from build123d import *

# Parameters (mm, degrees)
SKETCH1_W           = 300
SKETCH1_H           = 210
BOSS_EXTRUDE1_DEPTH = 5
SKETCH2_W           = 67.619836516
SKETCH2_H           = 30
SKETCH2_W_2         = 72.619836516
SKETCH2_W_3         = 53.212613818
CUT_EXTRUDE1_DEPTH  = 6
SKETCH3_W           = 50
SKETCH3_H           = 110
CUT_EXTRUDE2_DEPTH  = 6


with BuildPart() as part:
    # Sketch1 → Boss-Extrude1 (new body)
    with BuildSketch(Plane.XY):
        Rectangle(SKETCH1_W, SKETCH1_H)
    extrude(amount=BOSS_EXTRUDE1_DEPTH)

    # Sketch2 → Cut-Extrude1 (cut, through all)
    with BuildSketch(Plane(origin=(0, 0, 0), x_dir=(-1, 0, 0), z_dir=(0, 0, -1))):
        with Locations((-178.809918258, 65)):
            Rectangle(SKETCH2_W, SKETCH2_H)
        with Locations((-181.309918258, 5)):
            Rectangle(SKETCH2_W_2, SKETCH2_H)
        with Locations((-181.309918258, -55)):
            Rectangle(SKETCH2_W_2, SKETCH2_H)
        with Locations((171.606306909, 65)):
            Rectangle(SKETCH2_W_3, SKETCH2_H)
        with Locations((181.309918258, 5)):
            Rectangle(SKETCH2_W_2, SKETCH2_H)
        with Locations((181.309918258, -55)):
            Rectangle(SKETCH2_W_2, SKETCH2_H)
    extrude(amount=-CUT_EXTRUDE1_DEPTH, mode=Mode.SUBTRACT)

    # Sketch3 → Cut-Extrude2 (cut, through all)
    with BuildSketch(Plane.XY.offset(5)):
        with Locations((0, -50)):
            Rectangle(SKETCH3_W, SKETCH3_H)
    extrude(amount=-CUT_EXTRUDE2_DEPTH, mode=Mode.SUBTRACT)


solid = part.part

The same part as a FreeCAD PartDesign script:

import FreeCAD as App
import Part
import Sketcher

V = App.Vector

doc = App.newDocument("Part")
body = doc.addObject("PartDesign::Body", "Body")

# Sketch on XY plane
sketch1 = body.newObject("Sketcher::SketchObject", "Sketch")
sketch1.AttachmentSupport = (doc.getObject("XY_Plane"), [""])
sketch1.MapMode = "FlatFace"
sketch1.addGeometry(Part.LineSegment(V(-150, 105, 0), V(-150, -105, 0)), False)
sketch1.addGeometry(Part.LineSegment(V(-150, -105, 0), V(150, -105, 0)), False)
sketch1.addGeometry(Part.LineSegment(V(150, -105, 0), V(150, 105, 0)), False)
sketch1.addGeometry(Part.LineSegment(V(150, 105, 0), V(-150, 105, 0)), False)
sketch1.addConstraint(Sketcher.Constraint("Coincident", 0, 2, 1, 1))
sketch1.addConstraint(Sketcher.Constraint("Coincident", 1, 2, 2, 1))
sketch1.addConstraint(Sketcher.Constraint("Coincident", 2, 2, 3, 1))
sketch1.addConstraint(Sketcher.Constraint("Coincident", 3, 2, 0, 1))
sketch1.addConstraint(Sketcher.Constraint("Vertical", 0))
sketch1.addConstraint(Sketcher.Constraint("Horizontal", 1))
sketch1.addConstraint(Sketcher.Constraint("Vertical", 2))
sketch1.addConstraint(Sketcher.Constraint("Horizontal", 3))
sketch1.addConstraint(Sketcher.Constraint("Symmetric", 0, 2, 2, 2, -1, 1))
sketch1.addConstraint(Sketcher.Constraint("DistanceX", 1, 1, 1, 2, 300.0))
sketch1.addConstraint(Sketcher.Constraint("DistanceY", 0, 2, 0, 1, 210.0))
pad1 = body.newObject("PartDesign::Pad", "Pad")
pad1.Profile = sketch1
pad1.Length = 5

# Sketch on XY plane
sketch2 = body.newObject("Sketcher::SketchObject", "Sketch001")
sketch2.AttachmentSupport = (doc.getObject("XY_Plane"), [""])
sketch2.MapMode = "FlatFace"
sketch2.addGeometry(Part.LineSegment(V(212.619837, 80, 0), V(212.619837, 50, 0)), False)
sketch2.addGeometry(Part.LineSegment(V(212.619837, 50, 0), V(145, 50, 0)), False)
sketch2.addGeometry(Part.LineSegment(V(145, 50, 0), V(145, 80, 0)), False)
sketch2.addGeometry(Part.LineSegment(V(145, 80, 0), V(212.619837, 80, 0)), False)
sketch2.addGeometry(Part.LineSegment(V(217.619837, 20, 0), V(217.619837, -10, 0)), False)
sketch2.addGeometry(Part.LineSegment(V(217.619837, -10, 0), V(145, -10, 0)), False)
sketch2.addGeometry(Part.LineSegment(V(145, -10, 0), V(145, 20, 0)), False)
sketch2.addGeometry(Part.LineSegment(V(145, 20, 0), V(217.619837, 20, 0)), False)
sketch2.addGeometry(Part.LineSegment(V(217.619837, -40, 0), V(217.619837, -70, 0)), False)
sketch2.addGeometry(Part.LineSegment(V(217.619837, -70, 0), V(145, -70, 0)), False)
sketch2.addGeometry(Part.LineSegment(V(145, -70, 0), V(145, -40, 0)), False)
sketch2.addGeometry(Part.LineSegment(V(145, -40, 0), V(217.619837, -40, 0)), False)
sketch2.addGeometry(Part.LineSegment(V(-145, 80, 0), V(-145, 50, 0)), False)
sketch2.addGeometry(Part.LineSegment(V(-145, 50, 0), V(-198.212614, 50, 0)), False)
sketch2.addGeometry(Part.LineSegment(V(-198.212614, 50, 0), V(-198.212614, 80, 0)), False)
sketch2.addGeometry(Part.LineSegment(V(-198.212614, 80, 0), V(-145, 80, 0)), False)
sketch2.addGeometry(Part.LineSegment(V(-145, 20, 0), V(-145, -10, 0)), False)
sketch2.addGeometry(Part.LineSegment(V(-145, -10, 0), V(-217.619837, -10, 0)), False)
sketch2.addGeometry(Part.LineSegment(V(-217.619837, -10, 0), V(-217.619837, 20, 0)), False)
sketch2.addGeometry(Part.LineSegment(V(-217.619837, 20, 0), V(-145, 20, 0)), False)
sketch2.addGeometry(Part.LineSegment(V(-145, -40, 0), V(-145, -70, 0)), False)
sketch2.addGeometry(Part.LineSegment(V(-145, -70, 0), V(-217.619837, -70, 0)), False)
sketch2.addGeometry(Part.LineSegment(V(-217.619837, -70, 0), V(-217.619837, -40, 0)), False)
sketch2.addGeometry(Part.LineSegment(V(-217.619837, -40, 0), V(-145, -40, 0)), False)
sketch2.addConstraint(Sketcher.Constraint("Coincident", 0, 2, 1, 1))
sketch2.addConstraint(Sketcher.Constraint("Coincident", 1, 2, 2, 1))
sketch2.addConstraint(Sketcher.Constraint("Coincident", 2, 2, 3, 1))
sketch2.addConstraint(Sketcher.Constraint("Coincident", 3, 2, 0, 1))
sketch2.addConstraint(Sketcher.Constraint("Coincident", 4, 2, 5, 1))
sketch2.addConstraint(Sketcher.Constraint("Coincident", 5, 2, 6, 1))
sketch2.addConstraint(Sketcher.Constraint("Coincident", 6, 2, 7, 1))
sketch2.addConstraint(Sketcher.Constraint("Coincident", 7, 2, 4, 1))
sketch2.addConstraint(Sketcher.Constraint("Coincident", 8, 2, 9, 1))
sketch2.addConstraint(Sketcher.Constraint("Coincident", 9, 2, 10, 1))
sketch2.addConstraint(Sketcher.Constraint("Coincident", 10, 2, 11, 1))
sketch2.addConstraint(Sketcher.Constraint("Coincident", 11, 2, 8, 1))
sketch2.addConstraint(Sketcher.Constraint("Coincident", 12, 2, 13, 1))
sketch2.addConstraint(Sketcher.Constraint("Coincident", 13, 2, 14, 1))
sketch2.addConstraint(Sketcher.Constraint("Coincident", 14, 2, 15, 1))
sketch2.addConstraint(Sketcher.Constraint("Coincident", 15, 2, 12, 1))
sketch2.addConstraint(Sketcher.Constraint("Coincident", 16, 2, 17, 1))
sketch2.addConstraint(Sketcher.Constraint("Coincident", 17, 2, 18, 1))
sketch2.addConstraint(Sketcher.Constraint("Coincident", 18, 2, 19, 1))
sketch2.addConstraint(Sketcher.Constraint("Coincident", 19, 2, 16, 1))
sketch2.addConstraint(Sketcher.Constraint("Coincident", 20, 2, 21, 1))
sketch2.addConstraint(Sketcher.Constraint("Coincident", 21, 2, 22, 1))
sketch2.addConstraint(Sketcher.Constraint("Coincident", 22, 2, 23, 1))
sketch2.addConstraint(Sketcher.Constraint("Coincident", 23, 2, 20, 1))
sketch2.addConstraint(Sketcher.Constraint("Vertical", 0))
sketch2.addConstraint(Sketcher.Constraint("Horizontal", 1))
sketch2.addConstraint(Sketcher.Constraint("Vertical", 2))
sketch2.addConstraint(Sketcher.Constraint("Horizontal", 3))
sketch2.addConstraint(Sketcher.Constraint("Vertical", 4))
sketch2.addConstraint(Sketcher.Constraint("Horizontal", 5))
sketch2.addConstraint(Sketcher.Constraint("Vertical", 6))
sketch2.addConstraint(Sketcher.Constraint("Horizontal", 7))
sketch2.addConstraint(Sketcher.Constraint("Vertical", 8))
sketch2.addConstraint(Sketcher.Constraint("Horizontal", 9))
sketch2.addConstraint(Sketcher.Constraint("Vertical", 10))
sketch2.addConstraint(Sketcher.Constraint("Horizontal", 11))
sketch2.addConstraint(Sketcher.Constraint("Vertical", 12))
sketch2.addConstraint(Sketcher.Constraint("Horizontal", 13))
sketch2.addConstraint(Sketcher.Constraint("Vertical", 14))
sketch2.addConstraint(Sketcher.Constraint("Horizontal", 15))
sketch2.addConstraint(Sketcher.Constraint("Vertical", 16))
sketch2.addConstraint(Sketcher.Constraint("Horizontal", 17))
sketch2.addConstraint(Sketcher.Constraint("Vertical", 18))
sketch2.addConstraint(Sketcher.Constraint("Horizontal", 19))
sketch2.addConstraint(Sketcher.Constraint("Vertical", 20))
sketch2.addConstraint(Sketcher.Constraint("Horizontal", 21))
sketch2.addConstraint(Sketcher.Constraint("Vertical", 22))
sketch2.addConstraint(Sketcher.Constraint("Horizontal", 23))
sketch2.addConstraint(Sketcher.Constraint("Symmetric", 1, 2, 12, 2, -2))
sketch2.addConstraint(Sketcher.Constraint("Symmetric", 5, 2, 16, 2, -2))
sketch2.addConstraint(Sketcher.Constraint("Symmetric", 7, 2, 18, 2, -2))
sketch2.addConstraint(Sketcher.Constraint("Symmetric", 9, 2, 20, 2, -2))
sketch2.addConstraint(Sketcher.Constraint("Symmetric", 11, 2, 22, 2, -2))
sketch2.addConstraint(Sketcher.Constraint("Horizontal", 3, 2, 14, 2))
sketch2.addConstraint(Sketcher.Constraint("Vertical", 2, 2, 5, 2))
sketch2.addConstraint(Sketcher.Constraint("Vertical", 7, 2, 8, 2))
sketch2.addConstraint(Sketcher.Constraint("Vertical", 6, 2, 9, 2))
sketch2.addConstraint(Sketcher.Constraint("Equal", 2, 4))
sketch2.addConstraint(Sketcher.Constraint("Equal", 6, 8))
sketch2.addConstraint(Sketcher.Constraint("DistanceY", 0, 2, 0, 1, 30.0))
sketch2.addConstraint(Sketcher.Constraint("DistanceY", -1, 1, 0, 2, 50.0))
sketch2.addConstraint(Sketcher.Constraint("DistanceX", -1, 1, 1, 2, 145.0))
sketch2.addConstraint(Sketcher.Constraint("DistanceY", 4, 2, -1, 1, 10.0))
sketch2.addConstraint(Sketcher.Constraint("DistanceY", 8, 2, -1, 1, 70.0))
sketch2.addConstraint(Sketcher.Constraint("DistanceX", 0, 2, 4, 2, 5.0))
sketch2.addConstraint(Sketcher.Constraint("DistanceX", 1, 2, 1, 1, 67.619837))
sketch2.addConstraint(Sketcher.Constraint("DistanceX", 13, 2, 13, 1, 53.212614))
pocket1 = body.newObject("PartDesign::Pocket", "Pocket")
pocket1.Profile = sketch2
pocket1.Type = "ThroughAll"
pocket1.Reversed = True

# Sketch on XY plane
sketch3 = body.newObject("Sketcher::SketchObject", "Sketch002")
sketch3.AttachmentSupport = (doc.getObject("XY_Plane"), [""])
sketch3.MapMode = "FlatFace"
sketch3.AttachmentOffset = App.Placement(V(0, 0, 5), App.Rotation())
sketch3.addGeometry(Part.LineSegment(V(-25, 5, 0), V(-25, -105, 0)), False)
sketch3.addGeometry(Part.LineSegment(V(-25, -105, 0), V(25, -105, 0)), False)
sketch3.addGeometry(Part.LineSegment(V(25, -105, 0), V(25, 5, 0)), False)
sketch3.addGeometry(Part.LineSegment(V(25, 5, 0), V(-25, 5, 0)), False)
sketch3.addConstraint(Sketcher.Constraint("Coincident", 0, 2, 1, 1))
sketch3.addConstraint(Sketcher.Constraint("Coincident", 1, 2, 2, 1))
sketch3.addConstraint(Sketcher.Constraint("Coincident", 2, 2, 3, 1))
sketch3.addConstraint(Sketcher.Constraint("Coincident", 3, 2, 0, 1))
sketch3.addConstraint(Sketcher.Constraint("Vertical", 0))
sketch3.addConstraint(Sketcher.Constraint("Horizontal", 1))
sketch3.addConstraint(Sketcher.Constraint("Vertical", 2))
sketch3.addConstraint(Sketcher.Constraint("Horizontal", 3))
sketch3.addConstraint(Sketcher.Constraint("DistanceX", 1, 1, 1, 2, 50.0))
sketch3.addConstraint(Sketcher.Constraint("DistanceY", 0, 2, 0, 1, 110.0))
sketch3.addConstraint(Sketcher.Constraint("DistanceX", 0, 2, -1, 1, 25.0))
sketch3.addConstraint(Sketcher.Constraint("DistanceY", 0, 2, -1, 1, 105.0))
pocket2 = body.newObject("PartDesign::Pocket", "Pocket001")
pocket2.Profile = sketch3
pocket2.Type = "ThroughAll"

doc.recompute()
